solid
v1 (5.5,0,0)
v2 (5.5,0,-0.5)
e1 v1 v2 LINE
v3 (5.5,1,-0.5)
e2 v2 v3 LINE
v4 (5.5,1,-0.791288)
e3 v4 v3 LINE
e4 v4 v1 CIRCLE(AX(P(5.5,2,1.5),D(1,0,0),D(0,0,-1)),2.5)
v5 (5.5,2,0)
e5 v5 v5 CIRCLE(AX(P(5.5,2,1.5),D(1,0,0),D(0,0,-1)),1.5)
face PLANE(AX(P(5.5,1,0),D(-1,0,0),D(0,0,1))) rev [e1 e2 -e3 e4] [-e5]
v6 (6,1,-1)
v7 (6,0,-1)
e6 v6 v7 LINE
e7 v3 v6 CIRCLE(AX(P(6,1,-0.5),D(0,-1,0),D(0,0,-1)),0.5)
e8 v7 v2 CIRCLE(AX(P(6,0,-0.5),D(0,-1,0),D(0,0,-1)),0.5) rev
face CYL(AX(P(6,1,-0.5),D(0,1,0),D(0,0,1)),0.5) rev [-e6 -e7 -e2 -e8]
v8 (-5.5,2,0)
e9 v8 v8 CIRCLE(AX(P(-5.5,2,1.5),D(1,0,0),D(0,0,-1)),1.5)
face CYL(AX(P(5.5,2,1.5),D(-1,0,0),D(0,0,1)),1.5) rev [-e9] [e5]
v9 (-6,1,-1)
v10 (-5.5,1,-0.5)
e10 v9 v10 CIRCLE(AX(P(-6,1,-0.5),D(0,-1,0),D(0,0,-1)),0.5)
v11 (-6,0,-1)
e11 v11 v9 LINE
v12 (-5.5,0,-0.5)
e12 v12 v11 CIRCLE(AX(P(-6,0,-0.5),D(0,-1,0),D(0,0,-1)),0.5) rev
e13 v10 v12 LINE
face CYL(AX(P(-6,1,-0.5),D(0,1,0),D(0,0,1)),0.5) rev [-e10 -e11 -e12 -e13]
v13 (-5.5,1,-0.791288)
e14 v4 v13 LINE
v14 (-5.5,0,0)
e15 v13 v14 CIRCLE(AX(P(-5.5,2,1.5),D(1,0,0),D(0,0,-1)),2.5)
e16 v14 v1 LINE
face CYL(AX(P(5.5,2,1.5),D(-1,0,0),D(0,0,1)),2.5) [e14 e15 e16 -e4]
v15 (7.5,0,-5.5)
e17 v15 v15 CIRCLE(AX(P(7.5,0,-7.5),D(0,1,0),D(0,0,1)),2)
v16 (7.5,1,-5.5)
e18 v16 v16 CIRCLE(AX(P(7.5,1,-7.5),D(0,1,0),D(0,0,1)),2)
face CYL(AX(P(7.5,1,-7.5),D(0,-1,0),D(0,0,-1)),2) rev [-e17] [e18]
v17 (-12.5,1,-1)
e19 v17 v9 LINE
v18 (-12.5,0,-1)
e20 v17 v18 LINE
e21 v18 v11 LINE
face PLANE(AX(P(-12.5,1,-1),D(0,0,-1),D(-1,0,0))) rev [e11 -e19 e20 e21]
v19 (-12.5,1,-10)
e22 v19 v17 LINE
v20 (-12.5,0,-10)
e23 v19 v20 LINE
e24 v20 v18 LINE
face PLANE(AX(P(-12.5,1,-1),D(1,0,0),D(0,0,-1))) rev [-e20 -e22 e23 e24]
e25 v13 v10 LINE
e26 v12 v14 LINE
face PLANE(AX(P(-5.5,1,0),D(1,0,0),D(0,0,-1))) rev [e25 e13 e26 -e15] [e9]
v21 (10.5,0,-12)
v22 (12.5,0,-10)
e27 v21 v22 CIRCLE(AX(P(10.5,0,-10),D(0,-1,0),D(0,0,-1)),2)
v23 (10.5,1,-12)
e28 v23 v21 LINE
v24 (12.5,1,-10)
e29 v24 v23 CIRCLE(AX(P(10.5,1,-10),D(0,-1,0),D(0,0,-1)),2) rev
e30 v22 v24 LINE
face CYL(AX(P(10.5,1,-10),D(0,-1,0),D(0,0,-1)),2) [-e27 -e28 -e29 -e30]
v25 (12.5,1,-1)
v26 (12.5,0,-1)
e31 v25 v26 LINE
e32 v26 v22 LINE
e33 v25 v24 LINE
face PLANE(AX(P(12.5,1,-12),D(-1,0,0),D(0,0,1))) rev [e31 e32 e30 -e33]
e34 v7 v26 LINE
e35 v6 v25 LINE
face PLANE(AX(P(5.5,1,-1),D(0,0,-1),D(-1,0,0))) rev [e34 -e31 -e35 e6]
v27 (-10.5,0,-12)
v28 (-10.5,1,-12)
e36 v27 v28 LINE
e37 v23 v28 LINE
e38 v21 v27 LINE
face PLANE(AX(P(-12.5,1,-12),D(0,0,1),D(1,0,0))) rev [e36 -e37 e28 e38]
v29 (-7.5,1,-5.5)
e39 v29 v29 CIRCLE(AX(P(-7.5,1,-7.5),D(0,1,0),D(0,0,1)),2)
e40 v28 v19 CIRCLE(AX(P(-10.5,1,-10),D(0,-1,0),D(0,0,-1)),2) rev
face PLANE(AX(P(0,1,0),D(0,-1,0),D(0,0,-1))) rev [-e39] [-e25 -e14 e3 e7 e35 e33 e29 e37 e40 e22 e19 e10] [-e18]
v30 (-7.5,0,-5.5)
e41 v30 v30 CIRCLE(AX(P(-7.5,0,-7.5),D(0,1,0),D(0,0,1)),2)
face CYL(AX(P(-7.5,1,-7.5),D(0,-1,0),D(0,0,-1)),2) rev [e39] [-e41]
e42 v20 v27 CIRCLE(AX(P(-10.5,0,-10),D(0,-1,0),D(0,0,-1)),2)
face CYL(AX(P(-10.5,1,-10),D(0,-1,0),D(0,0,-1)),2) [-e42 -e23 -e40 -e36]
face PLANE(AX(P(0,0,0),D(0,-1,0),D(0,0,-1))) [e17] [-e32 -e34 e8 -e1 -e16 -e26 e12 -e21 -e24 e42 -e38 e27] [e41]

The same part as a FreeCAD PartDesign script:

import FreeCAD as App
import Part
import Sketcher


def edges_at(feature, points):
    """Names of the edges that pass closest to the given points."""
    edges = feature.Shape.Edges
    near = lambda p: min(range(len(edges)), key=lambda i: edges[i].distToShape(Part.Vertex(*p))[0])
    return sorted({f"Edge{near(p) + 1}" for p in points})

doc = App.newDocument("Part")
body = doc.addObject("PartDesign::Body", "Body")

# Sketch on XZ plane
sketch1 = doc.addObject("Sketcher::SketchObject", "Sketch")
body.addObject(sketch1)
sketch1.AttachmentSupport = (doc.XZ_Plane, [""])
sketch1.MapMode = "FlatFace"
sketch1.addGeometry([
    Part.LineSegment(App.Vector(-12.5, -1, 0), App.Vector(-5.5, -1, 0)),  # 0
    Part.LineSegment(App.Vector(-5.5, -1, 0), App.Vector(-5.5, 0, 0)),  # 1
    Part.LineSegment(App.Vector(-5.5, 0, 0), App.Vector(5.5, 0, 0)),  # 2
    Part.LineSegment(App.Vector(5.5, 0, 0), App.Vector(5.5, -1, 0)),  # 3
    Part.LineSegment(App.Vector(5.5, -1, 0), App.Vector(12.5, -1, 0)),  # 4
    Part.LineSegment(App.Vector(12.5, -1, 0), App.Vector(12.5, -12, 0)),  # 5
    Part.LineSegment(App.Vector(12.5, -12, 0), App.Vector(-12.5, -12, 0)),  # 6
    Part.LineSegment(App.Vector(-12.5, -12, 0), App.Vector(-12.5, -1, 0)),  # 7
    Part.Circle(App.Vector(-7.5, -7.5, 0), App.Vector(0, 0, 1), 2),  # 8
    Part.Circle(App.Vector(7.5, -7.5, 0), App.Vector(0, 0, 1), 2),  # 9
], False)
sketch1.addConstraint([
    Sketcher.Constraint("Coincident", 0, 2, 1, 1),
    Sketcher.Constraint("Coincident", 1, 2, 2, 1),
    Sketcher.Constraint("Coincident", 2, 2, 3, 1),
    Sketcher.Constraint("Coincident", 3, 2, 4, 1),
    Sketcher.Constraint("Coincident", 4, 2, 5, 1),
    Sketcher.Constraint("Coincident", 5, 2, 6, 1),
    Sketcher.Constraint("Coincident", 6, 2, 7, 1),
    Sketcher.Constraint("Coincident", 7, 2, 0, 1),
    Sketcher.Constraint("Horizontal", 0),
    Sketcher.Constraint("Vertical", 1),
    Sketcher.Constraint("Horizontal", 2),
    Sketcher.Constraint("Vertical", 3),
    Sketcher.Constraint("Horizontal", 4),
    Sketcher.Constraint("Vertical", 5),
    Sketcher.Constraint("Horizontal", 6),
    Sketcher.Constraint("Vertical", 7),
    Sketcher.Constraint("Equal", 8, 9),
    Sketcher.Constraint("Symmetric", 1, 2, 2, 2, -1, 1),
    Sketcher.Constraint("Symmetric", 8, 3, 9, 3, -2),
    Sketcher.Constraint("Symmetric", 4, 2, 7, 2, -2),
    Sketcher.Constraint("Equal", 2, 5),
    Sketcher.Constraint("Diameter", 8, 4.0),
    Sketcher.Constraint("DistanceX", 0, 1, 0, 2, 7.0),
    Sketcher.Constraint("DistanceX", 2, 1, 2, 2, 11.0),
    Sketcher.Constraint("DistanceY", 1, 1, 1, 2, 1.0),
    Sketcher.Constraint("DistanceX", 8, 3, 9, 3, 15.0),
    Sketcher.Constraint("DistanceY", 8, 3, -1, 1, 7.5),
])
pad1 = doc.addObject("PartDesign::Pad", "Pad")
body.addObject(pad1)
pad1.Profile = sketch1
pad1.Length = 1
pad1.Reversed = True
doc.recompute()

fillet = doc.addObject("PartDesign::Fillet", "Fillet")
body.addObject(fillet)
fillet.Base = (pad1, edges_at(pad1, [(-12.5, 0.5, -12), (12.5, 0.5, -12)]))
fillet.Radius = 2
doc.recompute()

fillet2 = doc.addObject("PartDesign::Fillet", "Fillet001")
body.addObject(fillet2)
fillet2.Base = (fillet, edges_at(fillet, [(5.5, 0.5, -1), (-5.5, 0.5, -1)]))
fillet2.Radius = 0.5

# Sketch on YZ plane
sketch2 = doc.addObject("Sketcher::SketchObject", "Sketch001")
body.addObject(sketch2)
sketch2.AttachmentSupport = (doc.YZ_Plane, [""])
sketch2.MapMode = "FlatFace"
sketch2.addGeometry([
    Part.Circle(App.Vector(2, 1.5, 0), App.Vector(0, 0, 1), 2.5),
    Part.Circle(App.Vector(2, 1.5, 0), App.Vector(0, 0, 1), 1.5),
], False)
sketch2.addConstraint([
    Sketcher.Constraint("Coincident", 1, 3, 0, 3),
    Sketcher.Constraint("Diameter", 0, 5.0),
    Sketcher.Constraint("Diameter", 1, 3.0),
    Sketcher.Constraint("DistanceX", -1, 1, 0, 3, 2.0),
    Sketcher.Constraint("DistanceY", -1, 1, 0, 3, 1.5),
])
pad2 = doc.addObject("PartDesign::Pad", "Pad001")
body.addObject(pad2)
pad2.Profile = sketch2
pad2.Length = 11
pad2.Midplane = True

doc.recompute()
